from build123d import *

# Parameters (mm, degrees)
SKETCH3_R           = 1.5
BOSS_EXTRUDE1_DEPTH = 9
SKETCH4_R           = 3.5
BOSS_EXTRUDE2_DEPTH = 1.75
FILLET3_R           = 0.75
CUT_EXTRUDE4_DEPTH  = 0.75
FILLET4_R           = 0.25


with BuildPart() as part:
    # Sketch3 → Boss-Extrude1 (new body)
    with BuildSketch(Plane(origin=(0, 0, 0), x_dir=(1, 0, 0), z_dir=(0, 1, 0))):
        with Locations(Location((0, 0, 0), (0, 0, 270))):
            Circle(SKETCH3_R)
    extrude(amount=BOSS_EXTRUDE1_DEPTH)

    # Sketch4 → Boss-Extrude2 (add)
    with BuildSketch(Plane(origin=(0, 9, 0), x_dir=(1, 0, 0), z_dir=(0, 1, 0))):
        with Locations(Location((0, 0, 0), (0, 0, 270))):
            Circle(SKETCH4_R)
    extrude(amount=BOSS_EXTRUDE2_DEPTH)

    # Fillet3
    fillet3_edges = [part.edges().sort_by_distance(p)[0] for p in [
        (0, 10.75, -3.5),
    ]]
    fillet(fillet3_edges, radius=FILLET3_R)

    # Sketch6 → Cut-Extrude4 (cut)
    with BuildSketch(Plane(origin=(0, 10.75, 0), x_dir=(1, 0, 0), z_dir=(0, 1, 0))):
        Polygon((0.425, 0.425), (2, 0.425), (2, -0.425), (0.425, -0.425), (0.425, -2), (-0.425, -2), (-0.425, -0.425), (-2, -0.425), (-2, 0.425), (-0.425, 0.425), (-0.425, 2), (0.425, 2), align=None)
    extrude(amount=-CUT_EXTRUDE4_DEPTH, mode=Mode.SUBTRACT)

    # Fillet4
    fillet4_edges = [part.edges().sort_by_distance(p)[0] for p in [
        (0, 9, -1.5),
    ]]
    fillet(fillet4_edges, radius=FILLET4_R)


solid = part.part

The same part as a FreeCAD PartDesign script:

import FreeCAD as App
import Part
import Sketcher

V = App.Vector


def edges_at(feature, points):
    """Names of the edges that pass closest to the given points."""
    edges = feature.Shape.Edges
    near = lambda p: min(range(len(edges)), key=lambda i: edges[i].distToShape(Part.Vertex(*p))[0])
    return sorted({f"Edge{near(p) + 1}" for p in points})

doc = App.newDocument("Part")
params = doc.addObject("Spreadsheet::Sheet", "Params")
for row, (alias, value) in enumerate([
    ("sketch1_diameter", "3 mm"),
    ("pad1_length", "9 mm"),
    ("sketch2_diameter", "7 mm"),
    ("pad2_length", "1.75 mm"),
    ("fillet_radius", "0.75 mm"),
    ("sketch3_width", "0.85 mm"),
    ("pocket1_length", "0.75 mm"),
    ("fillet2_radius", "0.25 mm"),
], start=1):
    params.set(f"A{row}", alias)
    params.set(f"B{row}", "=" + value)
    params.setAlias(f"B{row}", alias)

body = doc.addObject("PartDesign::Body", "Body")

# Sketch on XZ plane
sketch1 = doc.addObject("Sketcher::SketchObject", "Sketch")
body.addObject(sketch1)
sketch1.AttachmentSupport = (doc.XZ_Plane, [""])
sketch1.MapMode = "FlatFace"
sketch1.addGeometry(Part.Circle(V(0, 0, 0), V(0, 0, 1), 1.5), False)
sketch1.addConstraint(Sketcher.Constraint("Coincident", 0, 3, -1, 1))
sketch1.addConstraint(Sketcher.Constraint("Diameter", 0, 3.0))
sketch1.setExpression("Constraints[1]", "Params.sketch1_diameter")
pad1 = doc.addObject("PartDesign::Pad", "Pad")
body.addObject(pad1)
pad1.Profile = sketch1
pad1.setExpression("Length", "Params.pad1_length")
pad1.Reversed = True

# Sketch on XZ plane
sketch2 = doc.addObject("Sketcher::SketchObject", "Sketch001")
body.addObject(sketch2)
sketch2.AttachmentSupport = (doc.XZ_Plane, [""])
sketch2.MapMode = "FlatFace"
sketch2.AttachmentOffset = App.Placement(V(0, 0, -9), App.Rotation())
sketch2.addGeometry(Part.Circle(V(0, 0, 0), V(0, 0, 1), 3.5), False)
sketch2.addConstraint(Sketcher.Constraint("Coincident", 0, 3, -1, 1))
sketch2.addConstraint(Sketcher.Constraint("Diameter", 0, 7.0))
sketch2.setExpression("Constraints[1]", "Params.sketch2_diameter")
pad2 = doc.addObject("PartDesign::Pad", "Pad001")
body.addObject(pad2)
pad2.Profile = sketch2
pad2.setExpression("Length", "Params.pad2_length")
pad2.Reversed = True
doc.recompute()

fillet = doc.addObject("PartDesign::Fillet", "Fillet")
body.addObject(fillet)
fillet.Base = (pad2, edges_at(pad2, [(0, 10.75, -3.5)]))
fillet.setExpression("Radius", "Params.fillet_radius")

# Sketch on XZ plane
sketch3 = doc.addObject("Sketcher::SketchObject", "Sketch002")
body.addObject(sketch3)
sketch3.AttachmentSupport = (doc.XZ_Plane, [""])
sketch3.MapMode = "FlatFace"
sketch3.AttachmentOffset = App.Placement(V(0, 0, -10.75), App.Rotation())
sketch3.addGeometry(Part.LineSegment(V(2, -0.425, 0), V(0.425, -0.425, 0)), False)
sketch3.addGeometry(Part.LineSegment(V(0.425, -0.425, 0), V(0.425, -2, 0)), False)
sketch3.addGeometry(Part.LineSegment(V(0.425, -2, 0), V(-0.425, -2, 0)), False)
sketch3.addGeometry(Part.LineSegment(V(-0.425, -2, 0), V(-0.425, -0.425, 0)), False)
sketch3.addGeometry(Part.LineSegment(V(-0.425, -0.425, 0), V(-2, -0.425, 0)), False)
sketch3.addGeometry(Part.LineSegment(V(-2, -0.425, 0), V(-2, 0.425, 0)), False)
sketch3.addGeometry(Part.LineSegment(V(-2, 0.425, 0), V(-0.425, 0.425, 0)), False)
sketch3.addGeometry(Part.LineSegment(V(-0.425, 0.425, 0), V(-0.425, 2, 0)), False)
sketch3.addGeometry(Part.LineSegment(V(-0.425, 2, 0), V(0.425, 2, 0)), False)
sketch3.addGeometry(Part.LineSegment(V(0.425, 2, 0), V(0.425, 0.425, 0)), False)
sketch3.addGeometry(Part.LineSegment(V(0.425, 0.425, 0), V(2, 0.425, 0)), False)
sketch3.addGeometry(Part.LineSegment(V(2, 0.425, 0), V(2, -0.425, 0)), False)
sketch3.addConstraint(Sketcher.Constraint("Coincident", 0, 2, 1, 1))
sketch3.addConstraint(Sketcher.Constraint("Coincident", 1, 2, 2, 1))
sketch3.addConstraint(Sketcher.Constraint("Coincident", 2, 2, 3, 1))
sketch3.addConstraint(Sketcher.Constraint("Coincident", 3, 2, 4, 1))
sketch3.addConstraint(Sketcher.Constraint("Coincident", 4, 2, 5, 1))
sketch3.addConstraint(Sketcher.Constraint("Coincident", 5, 2, 6, 1))
sketch3.addConstraint(Sketcher.Constraint("Coincident", 6, 2, 7, 1))
sketch3.addConstraint(Sketcher.Constraint("Coincident", 7, 2, 8, 1))
sketch3.addConstraint(Sketcher.Constraint("Coincident", 8, 2, 9, 1))
sketch3.addConstraint(Sketcher.Constraint("Coincident", 9, 2, 10, 1))
sketch3.addConstraint(Sketcher.Constraint("Coincident", 10, 2, 11, 1))
sketch3.addConstraint(Sketcher.Constraint("Coincident", 11, 2, 0, 1))
sketch3.addConstraint(Sketcher.Constraint("Horizontal", 0))
sketch3.addConstraint(Sketcher.Constraint("Vertical", 1))
sketch3.addConstraint(Sketcher.Constraint("Horizontal", 2))
sketch3.addConstraint(Sketcher.Constraint("Vertical", 3))
sketch3.addConstraint(Sketcher.Constraint("Horizontal", 4))
sketch3.addConstraint(Sketcher.Constraint("Vertical", 5))
sketch3.addConstraint(Sketcher.Constraint("Horizontal", 6))
sketch3.addConstraint(Sketcher.Constraint("Vertical", 7))
sketch3.addConstraint(Sketcher.Constraint("Horizontal", 8))
sketch3.addConstraint(Sketcher.Constraint("Vertical", 9))
sketch3.addConstraint(Sketcher.Constraint("Horizontal", 10))
sketch3.addConstraint(Sketcher.Constraint("Vertical", 11))
sketch3.addConstraint(Sketcher.Constraint("Symmetric", 0, 2, 6, 2, -1, 1))
sketch3.addConstraint(Sketcher.Constraint("Symmetric", 2, 2, 8, 2, -1, 1))
sketch3.addConstraint(Sketcher.Constraint("Symmetric", 4, 2, 10, 2, -1, 1))
sketch3.addConstraint(Sketcher.Constraint("Symmetric", 0, 2, 3, 2, -2))
sketch3.addConstraint(Sketcher.Constraint("Equal", 10, 1))
sketch3.addConstraint(Sketcher.Constraint("Equal", 8, 5))
sketch3.addConstraint(Sketcher.Constraint("DistanceY", 1, 2, -1, 1, 2.0))
sketch3.addConstraint(Sketcher.Constraint("DistanceX", 2, 2, 2, 1, 0.85))
sketch3.setExpression("Constraints[31]", "Params.sketch3_width")
pocket1 = doc.addObject("PartDesign::Pocket", "Pocket")
body.addObject(pocket1)
pocket1.Profile = sketch3
pocket1.setExpression("Length", "Params.pocket1_length")
pocket1.Reversed = True
doc.recompute()

fillet2 = doc.addObject("PartDesign::Fillet", "Fillet001")
body.addObject(fillet2)
fillet2.Base = (pocket1, edges_at(pocket1, [(0, 9, -1.5)]))
fillet2.setExpression("Radius", "Params.fillet2_radius")

doc.recompute()
